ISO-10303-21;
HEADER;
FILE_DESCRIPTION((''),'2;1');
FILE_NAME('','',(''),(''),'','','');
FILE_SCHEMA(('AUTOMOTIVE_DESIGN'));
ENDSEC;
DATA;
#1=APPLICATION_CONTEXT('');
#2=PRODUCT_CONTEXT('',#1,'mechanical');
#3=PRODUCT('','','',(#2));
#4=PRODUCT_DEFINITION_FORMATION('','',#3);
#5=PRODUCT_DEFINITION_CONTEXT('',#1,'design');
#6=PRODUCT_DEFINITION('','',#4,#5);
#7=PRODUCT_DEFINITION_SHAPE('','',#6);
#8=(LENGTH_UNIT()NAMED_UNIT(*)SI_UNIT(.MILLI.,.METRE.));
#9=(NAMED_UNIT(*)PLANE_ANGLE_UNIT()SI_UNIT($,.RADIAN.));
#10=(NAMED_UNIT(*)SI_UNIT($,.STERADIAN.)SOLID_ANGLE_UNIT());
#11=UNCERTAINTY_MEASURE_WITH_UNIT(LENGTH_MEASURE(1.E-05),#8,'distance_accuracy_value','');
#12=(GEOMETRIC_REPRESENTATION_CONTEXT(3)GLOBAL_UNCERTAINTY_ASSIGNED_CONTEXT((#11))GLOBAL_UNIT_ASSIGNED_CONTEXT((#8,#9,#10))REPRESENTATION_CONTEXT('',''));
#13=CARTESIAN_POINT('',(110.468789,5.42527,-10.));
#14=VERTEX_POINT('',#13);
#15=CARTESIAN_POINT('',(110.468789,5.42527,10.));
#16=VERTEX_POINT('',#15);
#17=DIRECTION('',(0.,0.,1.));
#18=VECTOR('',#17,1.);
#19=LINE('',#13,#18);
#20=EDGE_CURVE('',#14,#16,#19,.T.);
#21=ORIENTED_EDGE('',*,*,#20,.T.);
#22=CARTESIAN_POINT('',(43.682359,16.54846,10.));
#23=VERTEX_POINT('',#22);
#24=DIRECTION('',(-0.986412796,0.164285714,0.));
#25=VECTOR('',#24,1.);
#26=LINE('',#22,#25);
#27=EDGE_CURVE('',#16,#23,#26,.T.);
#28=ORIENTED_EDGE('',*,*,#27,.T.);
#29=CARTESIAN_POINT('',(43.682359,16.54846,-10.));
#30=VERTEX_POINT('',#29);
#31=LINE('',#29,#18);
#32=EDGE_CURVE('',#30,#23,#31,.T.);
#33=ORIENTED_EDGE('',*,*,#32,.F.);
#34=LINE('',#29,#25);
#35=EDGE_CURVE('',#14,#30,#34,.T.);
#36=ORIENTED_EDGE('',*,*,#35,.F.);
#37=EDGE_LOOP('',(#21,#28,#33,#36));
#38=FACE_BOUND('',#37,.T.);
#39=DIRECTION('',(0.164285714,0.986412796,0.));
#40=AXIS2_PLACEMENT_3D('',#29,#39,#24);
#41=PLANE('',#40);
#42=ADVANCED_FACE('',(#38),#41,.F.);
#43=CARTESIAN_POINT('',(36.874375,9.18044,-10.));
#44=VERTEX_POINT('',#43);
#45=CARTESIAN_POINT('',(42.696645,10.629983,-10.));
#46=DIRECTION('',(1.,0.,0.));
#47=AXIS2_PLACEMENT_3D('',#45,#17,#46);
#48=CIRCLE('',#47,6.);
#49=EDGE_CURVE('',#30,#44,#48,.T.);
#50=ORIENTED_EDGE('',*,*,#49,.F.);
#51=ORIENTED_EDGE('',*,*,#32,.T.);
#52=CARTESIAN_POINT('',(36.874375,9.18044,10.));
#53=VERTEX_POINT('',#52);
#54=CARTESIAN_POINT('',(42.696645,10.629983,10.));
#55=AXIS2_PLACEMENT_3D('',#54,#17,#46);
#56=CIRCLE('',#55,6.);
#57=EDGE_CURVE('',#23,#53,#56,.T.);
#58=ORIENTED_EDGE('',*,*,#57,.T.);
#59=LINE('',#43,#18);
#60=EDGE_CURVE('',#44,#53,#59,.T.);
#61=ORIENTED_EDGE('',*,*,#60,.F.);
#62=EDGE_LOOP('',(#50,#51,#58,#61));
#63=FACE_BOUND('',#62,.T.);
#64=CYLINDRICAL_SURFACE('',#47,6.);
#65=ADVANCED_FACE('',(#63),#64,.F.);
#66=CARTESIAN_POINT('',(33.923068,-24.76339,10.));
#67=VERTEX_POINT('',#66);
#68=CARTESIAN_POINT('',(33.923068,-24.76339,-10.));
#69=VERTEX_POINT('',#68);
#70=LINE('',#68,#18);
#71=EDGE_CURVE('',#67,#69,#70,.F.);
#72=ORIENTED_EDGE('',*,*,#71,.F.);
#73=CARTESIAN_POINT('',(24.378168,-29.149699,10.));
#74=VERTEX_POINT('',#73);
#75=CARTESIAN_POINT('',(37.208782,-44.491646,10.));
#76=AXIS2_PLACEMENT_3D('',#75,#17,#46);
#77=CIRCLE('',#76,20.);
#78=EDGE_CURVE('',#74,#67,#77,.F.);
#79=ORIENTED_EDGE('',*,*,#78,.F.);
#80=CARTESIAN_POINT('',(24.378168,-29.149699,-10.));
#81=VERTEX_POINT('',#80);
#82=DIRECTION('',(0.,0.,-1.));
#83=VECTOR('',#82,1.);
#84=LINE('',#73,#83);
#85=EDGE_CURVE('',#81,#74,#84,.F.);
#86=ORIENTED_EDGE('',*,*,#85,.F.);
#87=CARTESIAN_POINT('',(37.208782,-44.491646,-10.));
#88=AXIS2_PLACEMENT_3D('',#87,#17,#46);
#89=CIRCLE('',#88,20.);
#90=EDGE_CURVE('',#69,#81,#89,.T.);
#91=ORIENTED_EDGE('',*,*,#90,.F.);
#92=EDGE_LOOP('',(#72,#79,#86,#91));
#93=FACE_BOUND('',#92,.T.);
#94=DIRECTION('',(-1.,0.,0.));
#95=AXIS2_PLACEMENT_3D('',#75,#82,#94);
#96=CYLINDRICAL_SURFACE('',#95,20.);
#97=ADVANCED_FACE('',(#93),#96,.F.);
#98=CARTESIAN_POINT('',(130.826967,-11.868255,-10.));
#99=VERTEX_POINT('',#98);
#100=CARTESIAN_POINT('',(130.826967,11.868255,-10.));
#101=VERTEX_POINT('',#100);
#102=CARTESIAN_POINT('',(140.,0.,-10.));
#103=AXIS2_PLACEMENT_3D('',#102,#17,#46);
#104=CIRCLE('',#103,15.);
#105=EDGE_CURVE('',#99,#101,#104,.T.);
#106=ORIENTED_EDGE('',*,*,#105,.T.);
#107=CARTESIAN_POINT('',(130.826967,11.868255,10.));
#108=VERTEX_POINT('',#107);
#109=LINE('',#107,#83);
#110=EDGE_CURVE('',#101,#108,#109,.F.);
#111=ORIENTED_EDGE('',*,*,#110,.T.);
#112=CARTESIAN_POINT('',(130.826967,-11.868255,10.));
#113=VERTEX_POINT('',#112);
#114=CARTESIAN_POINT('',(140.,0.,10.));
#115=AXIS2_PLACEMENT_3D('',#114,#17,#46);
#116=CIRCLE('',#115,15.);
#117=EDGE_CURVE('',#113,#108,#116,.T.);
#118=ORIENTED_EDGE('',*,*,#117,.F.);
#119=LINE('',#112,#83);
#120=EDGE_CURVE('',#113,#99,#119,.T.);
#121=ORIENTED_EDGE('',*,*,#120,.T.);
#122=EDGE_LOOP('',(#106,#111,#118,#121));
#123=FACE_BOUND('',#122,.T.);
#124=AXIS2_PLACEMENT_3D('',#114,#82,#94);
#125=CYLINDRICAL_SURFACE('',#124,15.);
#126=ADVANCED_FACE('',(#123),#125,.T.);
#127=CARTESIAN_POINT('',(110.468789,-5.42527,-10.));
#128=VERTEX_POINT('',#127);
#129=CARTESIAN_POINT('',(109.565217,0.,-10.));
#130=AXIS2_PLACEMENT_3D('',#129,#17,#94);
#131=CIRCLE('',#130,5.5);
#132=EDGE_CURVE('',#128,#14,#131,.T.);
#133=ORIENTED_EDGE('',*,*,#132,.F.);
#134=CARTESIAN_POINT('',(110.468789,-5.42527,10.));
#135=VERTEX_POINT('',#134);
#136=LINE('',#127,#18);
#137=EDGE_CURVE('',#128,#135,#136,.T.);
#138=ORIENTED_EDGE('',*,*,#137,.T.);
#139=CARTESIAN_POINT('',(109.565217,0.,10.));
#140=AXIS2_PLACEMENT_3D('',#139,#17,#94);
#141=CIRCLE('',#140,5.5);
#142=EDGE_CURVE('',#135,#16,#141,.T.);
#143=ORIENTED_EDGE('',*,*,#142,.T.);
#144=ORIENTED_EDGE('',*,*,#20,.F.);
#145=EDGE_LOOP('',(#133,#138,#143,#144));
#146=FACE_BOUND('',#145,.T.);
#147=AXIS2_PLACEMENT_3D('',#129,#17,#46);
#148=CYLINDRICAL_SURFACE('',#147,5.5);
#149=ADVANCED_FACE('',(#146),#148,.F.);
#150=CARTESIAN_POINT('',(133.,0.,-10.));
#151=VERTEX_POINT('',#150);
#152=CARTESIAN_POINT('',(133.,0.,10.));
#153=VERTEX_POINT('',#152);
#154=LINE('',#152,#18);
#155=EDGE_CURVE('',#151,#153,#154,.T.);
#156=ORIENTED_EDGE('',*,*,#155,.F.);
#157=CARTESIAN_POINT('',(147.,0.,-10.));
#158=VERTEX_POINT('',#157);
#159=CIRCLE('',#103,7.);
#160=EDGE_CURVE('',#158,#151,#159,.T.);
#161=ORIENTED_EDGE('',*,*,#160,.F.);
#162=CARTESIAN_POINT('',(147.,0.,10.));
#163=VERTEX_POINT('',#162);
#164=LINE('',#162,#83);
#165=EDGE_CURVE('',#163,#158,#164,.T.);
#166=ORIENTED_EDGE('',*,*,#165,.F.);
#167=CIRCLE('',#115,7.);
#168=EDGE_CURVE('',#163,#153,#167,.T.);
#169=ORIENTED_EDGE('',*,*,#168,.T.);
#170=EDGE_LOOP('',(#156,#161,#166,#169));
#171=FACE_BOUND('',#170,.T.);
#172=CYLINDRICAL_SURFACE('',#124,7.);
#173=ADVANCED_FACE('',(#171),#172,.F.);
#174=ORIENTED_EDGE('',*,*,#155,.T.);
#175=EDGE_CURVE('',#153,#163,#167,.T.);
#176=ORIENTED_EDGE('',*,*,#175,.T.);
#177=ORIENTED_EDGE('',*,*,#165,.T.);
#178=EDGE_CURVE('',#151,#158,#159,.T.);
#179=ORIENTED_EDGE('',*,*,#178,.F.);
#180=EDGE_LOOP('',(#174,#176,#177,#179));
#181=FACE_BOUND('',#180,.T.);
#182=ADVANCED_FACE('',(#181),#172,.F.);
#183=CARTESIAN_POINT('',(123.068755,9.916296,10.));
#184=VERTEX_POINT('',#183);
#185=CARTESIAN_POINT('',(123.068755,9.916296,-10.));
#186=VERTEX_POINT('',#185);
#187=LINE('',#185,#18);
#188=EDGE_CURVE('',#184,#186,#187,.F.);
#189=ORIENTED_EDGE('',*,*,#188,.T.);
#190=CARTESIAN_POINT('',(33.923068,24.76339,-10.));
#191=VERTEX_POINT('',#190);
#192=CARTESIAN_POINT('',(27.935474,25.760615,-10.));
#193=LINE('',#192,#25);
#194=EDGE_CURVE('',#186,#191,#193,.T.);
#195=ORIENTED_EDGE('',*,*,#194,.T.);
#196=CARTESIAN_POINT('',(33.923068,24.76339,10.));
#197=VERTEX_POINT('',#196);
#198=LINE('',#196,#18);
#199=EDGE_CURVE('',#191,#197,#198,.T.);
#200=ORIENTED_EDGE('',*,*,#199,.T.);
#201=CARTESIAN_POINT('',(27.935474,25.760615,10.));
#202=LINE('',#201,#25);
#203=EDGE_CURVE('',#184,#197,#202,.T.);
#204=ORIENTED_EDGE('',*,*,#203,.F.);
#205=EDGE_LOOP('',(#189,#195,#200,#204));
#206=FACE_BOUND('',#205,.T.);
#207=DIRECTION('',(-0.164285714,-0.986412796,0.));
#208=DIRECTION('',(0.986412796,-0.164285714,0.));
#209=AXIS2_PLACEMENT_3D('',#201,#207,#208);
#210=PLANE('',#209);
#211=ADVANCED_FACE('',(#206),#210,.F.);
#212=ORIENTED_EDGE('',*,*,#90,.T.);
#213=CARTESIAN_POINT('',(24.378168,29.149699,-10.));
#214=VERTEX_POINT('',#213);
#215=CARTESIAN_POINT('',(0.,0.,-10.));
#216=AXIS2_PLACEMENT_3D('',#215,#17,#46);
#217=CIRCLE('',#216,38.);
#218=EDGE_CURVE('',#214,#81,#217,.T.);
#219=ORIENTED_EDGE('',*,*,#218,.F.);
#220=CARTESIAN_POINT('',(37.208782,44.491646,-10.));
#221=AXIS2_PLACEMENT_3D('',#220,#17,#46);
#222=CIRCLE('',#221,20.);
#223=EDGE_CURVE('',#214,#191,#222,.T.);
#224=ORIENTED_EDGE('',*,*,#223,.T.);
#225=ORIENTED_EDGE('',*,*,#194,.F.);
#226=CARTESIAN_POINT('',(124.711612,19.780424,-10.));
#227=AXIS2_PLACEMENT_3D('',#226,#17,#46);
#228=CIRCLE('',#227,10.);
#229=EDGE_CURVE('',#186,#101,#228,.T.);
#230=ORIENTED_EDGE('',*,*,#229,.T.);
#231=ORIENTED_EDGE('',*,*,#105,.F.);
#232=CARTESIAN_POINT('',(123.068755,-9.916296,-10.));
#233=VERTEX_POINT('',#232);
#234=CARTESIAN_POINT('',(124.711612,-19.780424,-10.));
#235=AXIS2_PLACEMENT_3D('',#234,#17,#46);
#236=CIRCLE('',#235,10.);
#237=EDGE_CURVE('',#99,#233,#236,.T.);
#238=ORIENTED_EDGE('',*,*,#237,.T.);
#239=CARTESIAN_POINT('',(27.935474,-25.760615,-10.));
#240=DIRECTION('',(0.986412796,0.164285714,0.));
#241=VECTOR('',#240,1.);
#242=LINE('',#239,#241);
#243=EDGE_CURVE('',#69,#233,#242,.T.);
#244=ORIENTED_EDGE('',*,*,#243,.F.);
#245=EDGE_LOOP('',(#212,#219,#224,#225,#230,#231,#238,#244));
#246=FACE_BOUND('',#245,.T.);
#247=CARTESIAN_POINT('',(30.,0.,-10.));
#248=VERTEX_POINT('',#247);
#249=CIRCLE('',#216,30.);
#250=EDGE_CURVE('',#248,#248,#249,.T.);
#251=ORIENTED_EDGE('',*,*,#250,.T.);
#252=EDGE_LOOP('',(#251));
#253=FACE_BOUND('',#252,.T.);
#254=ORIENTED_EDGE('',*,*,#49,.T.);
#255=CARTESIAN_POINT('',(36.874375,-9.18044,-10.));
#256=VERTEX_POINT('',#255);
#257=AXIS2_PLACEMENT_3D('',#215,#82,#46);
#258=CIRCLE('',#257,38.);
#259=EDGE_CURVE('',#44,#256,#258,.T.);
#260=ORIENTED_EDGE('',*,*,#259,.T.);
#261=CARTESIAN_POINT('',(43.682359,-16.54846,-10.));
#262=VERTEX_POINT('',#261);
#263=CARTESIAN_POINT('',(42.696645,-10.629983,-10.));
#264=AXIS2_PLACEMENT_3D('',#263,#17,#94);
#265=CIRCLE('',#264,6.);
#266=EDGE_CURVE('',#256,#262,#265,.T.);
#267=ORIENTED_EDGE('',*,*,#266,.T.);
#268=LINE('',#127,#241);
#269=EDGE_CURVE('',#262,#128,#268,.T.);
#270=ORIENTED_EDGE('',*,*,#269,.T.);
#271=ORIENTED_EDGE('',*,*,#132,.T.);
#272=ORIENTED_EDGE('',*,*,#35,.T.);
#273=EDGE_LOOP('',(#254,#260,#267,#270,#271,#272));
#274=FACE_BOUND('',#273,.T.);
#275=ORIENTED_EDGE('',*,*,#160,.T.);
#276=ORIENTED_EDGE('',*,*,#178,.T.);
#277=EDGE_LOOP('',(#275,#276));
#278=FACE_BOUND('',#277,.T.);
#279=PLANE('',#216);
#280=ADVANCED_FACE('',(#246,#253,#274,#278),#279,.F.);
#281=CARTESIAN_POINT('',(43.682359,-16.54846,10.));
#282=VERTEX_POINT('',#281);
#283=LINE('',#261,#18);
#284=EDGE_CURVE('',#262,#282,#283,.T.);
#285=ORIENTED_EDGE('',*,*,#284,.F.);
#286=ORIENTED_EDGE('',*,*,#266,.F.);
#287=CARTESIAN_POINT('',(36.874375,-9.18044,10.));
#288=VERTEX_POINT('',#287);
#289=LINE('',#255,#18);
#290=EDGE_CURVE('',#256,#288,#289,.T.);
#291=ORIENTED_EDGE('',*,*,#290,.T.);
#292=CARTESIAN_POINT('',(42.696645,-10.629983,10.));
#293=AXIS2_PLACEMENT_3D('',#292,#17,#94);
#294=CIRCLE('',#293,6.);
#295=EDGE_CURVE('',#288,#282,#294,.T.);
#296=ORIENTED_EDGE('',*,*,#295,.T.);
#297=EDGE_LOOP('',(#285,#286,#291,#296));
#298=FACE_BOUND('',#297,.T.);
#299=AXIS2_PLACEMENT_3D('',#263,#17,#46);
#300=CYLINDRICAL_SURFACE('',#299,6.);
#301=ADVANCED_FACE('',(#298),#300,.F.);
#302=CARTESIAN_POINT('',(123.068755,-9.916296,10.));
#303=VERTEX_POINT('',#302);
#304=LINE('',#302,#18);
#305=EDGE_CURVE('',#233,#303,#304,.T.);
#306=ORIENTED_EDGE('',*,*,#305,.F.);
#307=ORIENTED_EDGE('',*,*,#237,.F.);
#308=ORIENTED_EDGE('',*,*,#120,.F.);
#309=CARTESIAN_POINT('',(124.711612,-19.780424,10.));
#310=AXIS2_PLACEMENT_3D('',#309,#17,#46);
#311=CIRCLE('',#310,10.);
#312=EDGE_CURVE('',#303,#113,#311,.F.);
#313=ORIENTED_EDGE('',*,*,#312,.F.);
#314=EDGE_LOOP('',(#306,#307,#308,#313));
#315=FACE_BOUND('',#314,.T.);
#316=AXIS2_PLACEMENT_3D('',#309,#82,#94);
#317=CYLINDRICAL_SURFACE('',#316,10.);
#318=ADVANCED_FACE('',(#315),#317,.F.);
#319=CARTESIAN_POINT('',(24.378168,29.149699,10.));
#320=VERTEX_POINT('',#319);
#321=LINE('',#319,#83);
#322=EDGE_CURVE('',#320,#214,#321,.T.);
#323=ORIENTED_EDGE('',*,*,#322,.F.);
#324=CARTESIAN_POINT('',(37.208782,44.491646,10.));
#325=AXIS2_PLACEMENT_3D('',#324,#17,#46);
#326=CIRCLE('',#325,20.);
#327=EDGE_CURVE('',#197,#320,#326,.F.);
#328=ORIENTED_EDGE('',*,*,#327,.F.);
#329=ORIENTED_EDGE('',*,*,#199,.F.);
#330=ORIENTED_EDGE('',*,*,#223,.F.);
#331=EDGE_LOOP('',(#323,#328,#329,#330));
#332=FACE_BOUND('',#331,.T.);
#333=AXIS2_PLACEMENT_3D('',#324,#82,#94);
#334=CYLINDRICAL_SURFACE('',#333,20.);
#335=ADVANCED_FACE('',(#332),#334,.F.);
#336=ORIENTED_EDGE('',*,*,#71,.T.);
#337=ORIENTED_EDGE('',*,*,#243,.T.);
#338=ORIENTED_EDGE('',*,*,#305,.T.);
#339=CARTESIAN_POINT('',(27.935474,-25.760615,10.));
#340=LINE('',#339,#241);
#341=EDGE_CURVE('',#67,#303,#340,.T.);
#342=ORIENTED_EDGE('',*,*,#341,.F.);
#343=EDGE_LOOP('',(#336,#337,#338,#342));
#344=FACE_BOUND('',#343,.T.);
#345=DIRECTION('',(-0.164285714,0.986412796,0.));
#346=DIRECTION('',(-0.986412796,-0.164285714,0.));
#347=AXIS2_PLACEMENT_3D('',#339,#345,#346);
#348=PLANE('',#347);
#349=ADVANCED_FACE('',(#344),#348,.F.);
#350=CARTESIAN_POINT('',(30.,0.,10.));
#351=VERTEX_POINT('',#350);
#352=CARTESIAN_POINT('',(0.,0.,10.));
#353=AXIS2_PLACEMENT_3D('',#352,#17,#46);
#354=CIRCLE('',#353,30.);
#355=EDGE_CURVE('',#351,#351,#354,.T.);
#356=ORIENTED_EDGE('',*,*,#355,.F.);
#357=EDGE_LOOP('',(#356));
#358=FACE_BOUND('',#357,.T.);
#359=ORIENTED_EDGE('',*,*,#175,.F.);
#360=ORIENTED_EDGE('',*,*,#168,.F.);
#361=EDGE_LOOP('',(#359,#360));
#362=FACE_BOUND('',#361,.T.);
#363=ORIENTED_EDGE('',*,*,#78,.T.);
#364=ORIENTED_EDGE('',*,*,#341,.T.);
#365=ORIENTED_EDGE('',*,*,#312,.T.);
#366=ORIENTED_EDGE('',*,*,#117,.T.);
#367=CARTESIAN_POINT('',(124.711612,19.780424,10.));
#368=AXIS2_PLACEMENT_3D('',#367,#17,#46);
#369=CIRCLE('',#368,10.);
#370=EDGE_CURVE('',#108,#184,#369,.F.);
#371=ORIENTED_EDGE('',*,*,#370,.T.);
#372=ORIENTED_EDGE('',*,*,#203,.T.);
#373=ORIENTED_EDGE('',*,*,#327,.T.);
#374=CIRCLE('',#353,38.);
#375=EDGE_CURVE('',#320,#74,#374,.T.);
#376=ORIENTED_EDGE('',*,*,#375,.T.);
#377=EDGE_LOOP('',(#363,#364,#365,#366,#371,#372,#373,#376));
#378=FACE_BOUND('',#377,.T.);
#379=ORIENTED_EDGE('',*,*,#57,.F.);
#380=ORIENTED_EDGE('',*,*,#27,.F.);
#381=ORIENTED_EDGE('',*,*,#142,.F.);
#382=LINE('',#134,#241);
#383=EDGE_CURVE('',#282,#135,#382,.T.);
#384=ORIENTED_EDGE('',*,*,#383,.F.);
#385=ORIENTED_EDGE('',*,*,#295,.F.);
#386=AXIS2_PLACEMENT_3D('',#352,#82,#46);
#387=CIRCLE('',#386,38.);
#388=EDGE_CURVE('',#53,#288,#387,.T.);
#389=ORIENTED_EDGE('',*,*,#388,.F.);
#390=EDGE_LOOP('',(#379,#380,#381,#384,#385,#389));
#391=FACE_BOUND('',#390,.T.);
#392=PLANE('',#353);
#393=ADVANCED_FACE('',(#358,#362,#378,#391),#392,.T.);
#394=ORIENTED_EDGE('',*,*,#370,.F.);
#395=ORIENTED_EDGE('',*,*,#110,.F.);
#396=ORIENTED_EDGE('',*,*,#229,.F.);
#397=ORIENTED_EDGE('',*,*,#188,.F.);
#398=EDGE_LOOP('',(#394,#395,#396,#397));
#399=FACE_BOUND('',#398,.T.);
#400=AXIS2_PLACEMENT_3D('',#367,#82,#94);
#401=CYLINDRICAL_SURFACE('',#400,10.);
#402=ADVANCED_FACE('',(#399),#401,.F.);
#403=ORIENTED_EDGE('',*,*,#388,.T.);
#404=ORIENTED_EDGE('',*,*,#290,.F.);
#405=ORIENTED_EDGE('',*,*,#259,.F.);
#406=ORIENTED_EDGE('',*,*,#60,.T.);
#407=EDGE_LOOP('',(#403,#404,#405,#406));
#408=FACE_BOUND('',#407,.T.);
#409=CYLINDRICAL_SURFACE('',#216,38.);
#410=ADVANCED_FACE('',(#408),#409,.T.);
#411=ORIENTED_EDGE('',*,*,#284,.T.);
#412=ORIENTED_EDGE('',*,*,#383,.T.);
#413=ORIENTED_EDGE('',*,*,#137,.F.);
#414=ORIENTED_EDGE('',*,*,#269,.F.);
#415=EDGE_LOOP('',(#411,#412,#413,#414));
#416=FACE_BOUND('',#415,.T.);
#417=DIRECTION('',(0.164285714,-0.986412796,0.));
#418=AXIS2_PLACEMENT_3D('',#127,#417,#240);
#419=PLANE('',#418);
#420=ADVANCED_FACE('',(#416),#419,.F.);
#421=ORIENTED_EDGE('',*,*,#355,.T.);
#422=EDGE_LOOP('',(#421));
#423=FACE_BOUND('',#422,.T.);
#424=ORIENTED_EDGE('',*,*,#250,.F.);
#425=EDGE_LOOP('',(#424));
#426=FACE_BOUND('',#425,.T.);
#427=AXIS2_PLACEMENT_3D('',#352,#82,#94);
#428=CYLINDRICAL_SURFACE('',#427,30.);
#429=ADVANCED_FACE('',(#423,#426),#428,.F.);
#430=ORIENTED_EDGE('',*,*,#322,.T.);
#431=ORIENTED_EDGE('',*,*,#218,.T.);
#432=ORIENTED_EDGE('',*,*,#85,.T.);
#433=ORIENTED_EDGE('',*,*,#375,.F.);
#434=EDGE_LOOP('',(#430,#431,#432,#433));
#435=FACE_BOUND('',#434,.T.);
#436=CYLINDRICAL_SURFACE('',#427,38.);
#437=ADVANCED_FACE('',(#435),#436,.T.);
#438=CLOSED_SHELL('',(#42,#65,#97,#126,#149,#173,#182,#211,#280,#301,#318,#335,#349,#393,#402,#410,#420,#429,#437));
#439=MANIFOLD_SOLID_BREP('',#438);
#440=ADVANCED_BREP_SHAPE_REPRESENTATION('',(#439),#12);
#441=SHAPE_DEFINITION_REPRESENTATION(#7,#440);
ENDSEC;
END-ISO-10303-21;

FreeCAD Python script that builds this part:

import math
import FreeCAD as App
import Part
import Sketcher


def edges_at(feature, points):
    """Names of the edges that pass closest to the given points."""
    edges = feature.Shape.Edges
    near = lambda p: min(range(len(edges)), key=lambda i: edges[i].distToShape(Part.Vertex(*p))[0])
    return sorted({f"Edge{near(p) + 1}" for p in points})

doc = App.newDocument("Part")
body = doc.addObject("PartDesign::Body", "Body")

sketch1 = doc.addObject("Sketcher::SketchObject", "Sketch")
body.addObject(sketch1)
sketch1.AttachmentSupport = (doc.XY_Plane, [""])
sketch1.MapMode = "FlatFace"
sketch1.addGeometry([
    Part.LineSegment(App.Vector(128.063755, 9.084386, 0), App.Vector(27.935474, 25.760615, 0)),
    Part.ArcOfCircle(Part.Circle(App.Vector(0, 0, 0), App.Vector(0, 0, 1), 38), math.radians(42.680611), math.radians(317.319389)),
    Part.LineSegment(App.Vector(27.935474, -25.760615, 0), App.Vector(128.063755, -9.084386, 0)),
    Part.ArcOfCircle(Part.Circle(App.Vector(140, 0, 0), App.Vector(0, 0, 1), 15), math.radians(-142.726118), math.radians(142.726118)),
    Part.Circle(App.Vector(140, 0, 0), App.Vector(0, 0, 1), 7),
    Part.Circle(App.Vector(0, 0, 0), App.Vector(0, 0, 1), 30),
], False)
sketch1.addConstraint([
    Sketcher.Constraint("Coincident", 0, 2, 1, 1),
    Sketcher.Constraint("Coincident", 1, 2, 2, 1),
    Sketcher.Constraint("Coincident", 2, 2, 3, 1),
    Sketcher.Constraint("Coincident", 3, 2, 0, 1),
    Sketcher.Constraint("Coincident", 1, 3, -1, 1),
    Sketcher.Constraint("Coincident", 5, 3, -1, 1),
    Sketcher.Constraint("Coincident", 4, 3, 3, 3),
    Sketcher.Constraint("Symmetric", 2, 2, 3, 2, -1),
    Sketcher.Constraint("Vertical", 0, 2, 1, 2),
    Sketcher.Constraint("Diameter", 4, 14.0),
    Sketcher.Constraint("Diameter", 5, 60.0),
    Sketcher.Constraint("Radius", 1, 38.0),
    Sketcher.Constraint("Radius", 3, 15.0),
    Sketcher.Constraint("DistanceX", -1, 1, 3, 3, 140.0),
    Sketcher.Constraint("DistanceY", 2, 2, 0, 2, 34.845001),
    Sketcher.Constraint("DistanceY", 1, 2, 0, 2, 51.521231),
])
pad1 = doc.addObject("PartDesign::Pad", "Pad")
body.addObject(pad1)
pad1.Profile = sketch1
pad1.Length = 20
pad1.Midplane = True
doc.recompute()

fillet = doc.addObject("PartDesign::Fillet", "Fillet")
body.addObject(fillet)
fillet.Base = (pad1, edges_at(pad1, [(27.935, 25.761, 0), (27.935, -25.761, 0)]))
fillet.Radius = 20
doc.recompute()

fillet2 = doc.addObject("PartDesign::Fillet", "Fillet001")
body.addObject(fillet2)
fillet2.Base = (fillet, edges_at(fillet, [(128.064, 9.084, 0), (128.064, -9.084, 0)]))
fillet2.Radius = 10

sketch2 = doc.addObject("Sketcher::SketchObject", "Sketch001")
body.addObject(sketch2)
sketch2.AttachmentSupport = (doc.XY_Plane, [""])
sketch2.MapMode = "FlatFace"
sketch2.AttachmentOffset = App.Placement(App.Vector(0, 0, 10), App.Rotation())
sketch2.addGeometry([
    Part.LineSegment(App.Vector(110.468789, 5.42527, 0), App.Vector(43.682359, 16.54846, 0)),
    Part.ArcOfCircle(Part.Circle(App.Vector(42.696645, 10.629983, 0), App.Vector(0, 0, 1), 6), math.radians(80.544257), math.radians(193.980433)),
    Part.ArcOfCircle(Part.Circle(App.Vector(0, 0, 0), App.Vector(0, 0, 1), 38), math.radians(-13.980433), math.radians(13.980433)),
    Part.ArcOfCircle(Part.Circle(App.Vector(42.696645, -10.629983, 0), App.Vector(0, 0, 1), 6), math.radians(166.019567), math.radians(279.455743)),
    Part.LineSegment(App.Vector(43.682359, -16.54846, 0), App.Vector(110.468789, -5.42527, 0)),
    Part.ArcOfCircle(Part.Circle(App.Vector(109.565217, 0, 0), App.Vector(0, 0, 1), 5.5), math.radians(-80.544257), math.radians(80.544257)),
], False)
sketch2.addConstraint([
    Sketcher.Constraint("Tangent", 0, 2, 1, 1),
    Sketcher.Constraint("Tangent", 1, 2, 2, 2),
    Sketcher.Constraint("Tangent", 2, 1, 3, 1),
    Sketcher.Constraint("Tangent", 3, 2, 4, 1),
    Sketcher.Constraint("Tangent", 4, 2, 5, 1),
    Sketcher.Constraint("Tangent", 5, 2, 0, 1),
    Sketcher.Constraint("Coincident", 2, 3, -1, 1),
    Sketcher.Constraint("Equal", 1, 3),
    Sketcher.Constraint("Symmetric", 0, 2, 3, 2, -1),
    Sketcher.Constraint("Radius", 1, 6.0),
    Sketcher.Constraint("Radius", 2, 38.0),
    Sketcher.Constraint("Radius", 5, 5.5),
    Sketcher.Constraint("DistanceY", 2, 1, 0, 2, 25.7289),
    Sketcher.Constraint("Distance", 0, 67.70637),
])
pocket1 = doc.addObject("PartDesign::Pocket", "Pocket")
body.addObject(pocket1)
pocket1.Profile = sketch2
pocket1.Type = "ThroughAll"

doc.recompute()
